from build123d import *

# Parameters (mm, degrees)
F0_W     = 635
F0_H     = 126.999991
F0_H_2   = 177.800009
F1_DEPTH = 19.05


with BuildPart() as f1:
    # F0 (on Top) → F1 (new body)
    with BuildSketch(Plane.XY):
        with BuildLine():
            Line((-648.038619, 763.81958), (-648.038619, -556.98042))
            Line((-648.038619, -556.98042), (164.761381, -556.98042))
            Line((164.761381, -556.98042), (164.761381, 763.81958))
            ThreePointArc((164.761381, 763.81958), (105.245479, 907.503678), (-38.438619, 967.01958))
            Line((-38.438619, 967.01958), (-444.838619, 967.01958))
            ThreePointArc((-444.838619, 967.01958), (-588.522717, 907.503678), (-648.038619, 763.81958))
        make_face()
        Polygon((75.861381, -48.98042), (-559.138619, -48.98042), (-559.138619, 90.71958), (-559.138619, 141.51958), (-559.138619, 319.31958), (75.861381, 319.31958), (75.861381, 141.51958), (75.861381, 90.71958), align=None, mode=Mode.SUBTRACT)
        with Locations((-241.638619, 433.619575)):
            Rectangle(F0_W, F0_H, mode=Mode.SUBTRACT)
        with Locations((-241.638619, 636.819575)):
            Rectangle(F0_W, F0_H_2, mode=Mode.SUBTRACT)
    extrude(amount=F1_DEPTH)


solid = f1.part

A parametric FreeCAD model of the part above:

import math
import FreeCAD as App
import Part
import Sketcher
Q = App.Units.Quantity

doc = App.newDocument("Part")
body = doc.addObject("PartDesign::Body", "Body")

sketch1 = body.newObject("Sketcher::SketchObject", "Sketch")
sketch1.AttachmentSupport = (doc.getObject("XY_Plane"), [""])
sketch1.MapMode = "FlatFace"
sketch1.addGeometry([
    Part.LineSegment(App.Vector(-648, 764, 0), App.Vector(-648, -557, 0)),
    Part.LineSegment(App.Vector(-648, -557, 0), App.Vector(165, -557, 0)),
    Part.LineSegment(App.Vector(165, -557, 0), App.Vector(165, 764, 0)),
    Part.ArcOfCircle(Part.Circle(App.Vector(-38, 764, 0), App.Vector(0, 0, 1), 203), math.radians(0), math.radians(90)),
    Part.LineSegment(App.Vector(-38, 967, 0), App.Vector(-445, 967, 0)),
    Part.ArcOfCircle(Part.Circle(App.Vector(-445, 764, 0), App.Vector(0, 0, 1), 203), math.radians(90), math.radians(180)),
    Part.LineSegment(App.Vector(76, 319, 0), App.Vector(76, -49, 0)),
    Part.LineSegment(App.Vector(76, -49, 0), App.Vector(-559, -49, 0)),
    Part.LineSegment(App.Vector(-559, -49, 0), App.Vector(-559, 319, 0)),
    Part.LineSegment(App.Vector(-559, 319, 0), App.Vector(76, 319, 0)),
    Part.LineSegment(App.Vector(76, 370, 0), App.Vector(-559, 370, 0)),
    Part.LineSegment(App.Vector(-559, 370, 0), App.Vector(-559, 497, 0)),
    Part.LineSegment(App.Vector(-559, 497, 0), App.Vector(76, 497, 0)),
    Part.LineSegment(App.Vector(76, 497, 0), App.Vector(76, 370, 0)),
    Part.LineSegment(App.Vector(76, 548, 0), App.Vector(-559, 548, 0)),
    Part.LineSegment(App.Vector(-559, 548, 0), App.Vector(-559, 726, 0)),
    Part.LineSegment(App.Vector(-559, 726, 0), App.Vector(76, 726, 0)),
    Part.LineSegment(App.Vector(76, 726, 0), App.Vector(76, 548, 0)),
], False)
sketch1.addConstraint([
    Sketcher.Constraint("Coincident", 0, 2, 1, 1),
    Sketcher.Constraint("Coincident", 1, 2, 2, 1),
    Sketcher.Constraint("Tangent", 2, 2, 3, 1),
    Sketcher.Constraint("Tangent", 3, 2, 4, 1),
    Sketcher.Constraint("Tangent", 4, 2, 5, 1),
    Sketcher.Constraint("Tangent", 5, 2, 0, 1),
    Sketcher.Constraint("Coincident", 6, 2, 7, 1),
    Sketcher.Constraint("Coincident", 7, 2, 8, 1),
    Sketcher.Constraint("Coincident", 8, 2, 9, 1),
    Sketcher.Constraint("Coincident", 9, 2, 6, 1),
    Sketcher.Constraint("Coincident", 10, 2, 11, 1),
    Sketcher.Constraint("Coincident", 11, 2, 12, 1),
    Sketcher.Constraint("Coincident", 12, 2, 13, 1),
    Sketcher.Constraint("Coincident", 13, 2, 10, 1),
    Sketcher.Constraint("Coincident", 14, 2, 15, 1),
    Sketcher.Constraint("Coincident", 15, 2, 16, 1),
    Sketcher.Constraint("Coincident", 16, 2, 17, 1),
    Sketcher.Constraint("Coincident", 17, 2, 14, 1),
    Sketcher.Constraint("Vertical", 0),
    Sketcher.Constraint("Horizontal", 1),
    Sketcher.Constraint("Vertical", 2),
    Sketcher.Constraint("Horizontal", 4),
    Sketcher.Constraint("Vertical", 6),
    Sketcher.Constraint("Horizontal", 7),
    Sketcher.Constraint("Vertical", 8),
    Sketcher.Constraint("Horizontal", 9),
    Sketcher.Constraint("Horizontal", 10),
    Sketcher.Constraint("Vertical", 11),
    Sketcher.Constraint("Horizontal", 12),
    Sketcher.Constraint("Vertical", 13),
    Sketcher.Constraint("Horizontal", 14),
    Sketcher.Constraint("Vertical", 15),
    Sketcher.Constraint("Horizontal", 16),
    Sketcher.Constraint("Vertical", 17),
    Sketcher.Constraint("Equal", 3, 5),
    Sketcher.Constraint("Vertical", 8, 2, 10, 2),
    Sketcher.Constraint("Vertical", 9, 2, 12, 2),
    Sketcher.Constraint("Vertical", 11, 2, 14, 2),
    Sketcher.Constraint("Vertical", 13, 2, 16, 2),
    Sketcher.Constraint("Radius", 3, Q("8 in")),
    Sketcher.Constraint("DistanceX", 1, 1, 1, 2, Q("32 in")),
    Sketcher.Constraint("DistanceX", 7, 2, 7, 1, Q("25 in")),
    Sketcher.Constraint("DistanceY", 0, 2, 0, 1, Q("52 in")),
    Sketcher.Constraint("DistanceY", 6, 2, 6, 1, Q("14.5 in")),
    Sketcher.Constraint("DistanceY", 1, 2, 6, 2, Q("20 in")),
    Sketcher.Constraint("DistanceY", 8, 2, 10, 2, Q("2 in")),
    Sketcher.Constraint("DistanceY", 11, 2, 14, 2, Q("2 in")),
    Sketcher.Constraint("DistanceY", 13, 2, 16, 2, Q("14 in")),
    Sketcher.Constraint("DistanceX", 6, 2, 1, 2, Q("3.5 in")),
    Sketcher.Constraint("DistanceY", 11, 1, 11, 2, Q("126.999991 mm")),
    Sketcher.Constraint("DistanceX", 3, 3, -1, 1, Q("38.438619 mm")),
    Sketcher.Constraint("DistanceY", -1, 1, 3, 3, Q("763.81958 mm")),
])
pad1 = body.newObject("PartDesign::Pad", "Pad")
pad1.Profile = sketch1
pad1.Length = Q("0.75 in")

doc.recompute()
